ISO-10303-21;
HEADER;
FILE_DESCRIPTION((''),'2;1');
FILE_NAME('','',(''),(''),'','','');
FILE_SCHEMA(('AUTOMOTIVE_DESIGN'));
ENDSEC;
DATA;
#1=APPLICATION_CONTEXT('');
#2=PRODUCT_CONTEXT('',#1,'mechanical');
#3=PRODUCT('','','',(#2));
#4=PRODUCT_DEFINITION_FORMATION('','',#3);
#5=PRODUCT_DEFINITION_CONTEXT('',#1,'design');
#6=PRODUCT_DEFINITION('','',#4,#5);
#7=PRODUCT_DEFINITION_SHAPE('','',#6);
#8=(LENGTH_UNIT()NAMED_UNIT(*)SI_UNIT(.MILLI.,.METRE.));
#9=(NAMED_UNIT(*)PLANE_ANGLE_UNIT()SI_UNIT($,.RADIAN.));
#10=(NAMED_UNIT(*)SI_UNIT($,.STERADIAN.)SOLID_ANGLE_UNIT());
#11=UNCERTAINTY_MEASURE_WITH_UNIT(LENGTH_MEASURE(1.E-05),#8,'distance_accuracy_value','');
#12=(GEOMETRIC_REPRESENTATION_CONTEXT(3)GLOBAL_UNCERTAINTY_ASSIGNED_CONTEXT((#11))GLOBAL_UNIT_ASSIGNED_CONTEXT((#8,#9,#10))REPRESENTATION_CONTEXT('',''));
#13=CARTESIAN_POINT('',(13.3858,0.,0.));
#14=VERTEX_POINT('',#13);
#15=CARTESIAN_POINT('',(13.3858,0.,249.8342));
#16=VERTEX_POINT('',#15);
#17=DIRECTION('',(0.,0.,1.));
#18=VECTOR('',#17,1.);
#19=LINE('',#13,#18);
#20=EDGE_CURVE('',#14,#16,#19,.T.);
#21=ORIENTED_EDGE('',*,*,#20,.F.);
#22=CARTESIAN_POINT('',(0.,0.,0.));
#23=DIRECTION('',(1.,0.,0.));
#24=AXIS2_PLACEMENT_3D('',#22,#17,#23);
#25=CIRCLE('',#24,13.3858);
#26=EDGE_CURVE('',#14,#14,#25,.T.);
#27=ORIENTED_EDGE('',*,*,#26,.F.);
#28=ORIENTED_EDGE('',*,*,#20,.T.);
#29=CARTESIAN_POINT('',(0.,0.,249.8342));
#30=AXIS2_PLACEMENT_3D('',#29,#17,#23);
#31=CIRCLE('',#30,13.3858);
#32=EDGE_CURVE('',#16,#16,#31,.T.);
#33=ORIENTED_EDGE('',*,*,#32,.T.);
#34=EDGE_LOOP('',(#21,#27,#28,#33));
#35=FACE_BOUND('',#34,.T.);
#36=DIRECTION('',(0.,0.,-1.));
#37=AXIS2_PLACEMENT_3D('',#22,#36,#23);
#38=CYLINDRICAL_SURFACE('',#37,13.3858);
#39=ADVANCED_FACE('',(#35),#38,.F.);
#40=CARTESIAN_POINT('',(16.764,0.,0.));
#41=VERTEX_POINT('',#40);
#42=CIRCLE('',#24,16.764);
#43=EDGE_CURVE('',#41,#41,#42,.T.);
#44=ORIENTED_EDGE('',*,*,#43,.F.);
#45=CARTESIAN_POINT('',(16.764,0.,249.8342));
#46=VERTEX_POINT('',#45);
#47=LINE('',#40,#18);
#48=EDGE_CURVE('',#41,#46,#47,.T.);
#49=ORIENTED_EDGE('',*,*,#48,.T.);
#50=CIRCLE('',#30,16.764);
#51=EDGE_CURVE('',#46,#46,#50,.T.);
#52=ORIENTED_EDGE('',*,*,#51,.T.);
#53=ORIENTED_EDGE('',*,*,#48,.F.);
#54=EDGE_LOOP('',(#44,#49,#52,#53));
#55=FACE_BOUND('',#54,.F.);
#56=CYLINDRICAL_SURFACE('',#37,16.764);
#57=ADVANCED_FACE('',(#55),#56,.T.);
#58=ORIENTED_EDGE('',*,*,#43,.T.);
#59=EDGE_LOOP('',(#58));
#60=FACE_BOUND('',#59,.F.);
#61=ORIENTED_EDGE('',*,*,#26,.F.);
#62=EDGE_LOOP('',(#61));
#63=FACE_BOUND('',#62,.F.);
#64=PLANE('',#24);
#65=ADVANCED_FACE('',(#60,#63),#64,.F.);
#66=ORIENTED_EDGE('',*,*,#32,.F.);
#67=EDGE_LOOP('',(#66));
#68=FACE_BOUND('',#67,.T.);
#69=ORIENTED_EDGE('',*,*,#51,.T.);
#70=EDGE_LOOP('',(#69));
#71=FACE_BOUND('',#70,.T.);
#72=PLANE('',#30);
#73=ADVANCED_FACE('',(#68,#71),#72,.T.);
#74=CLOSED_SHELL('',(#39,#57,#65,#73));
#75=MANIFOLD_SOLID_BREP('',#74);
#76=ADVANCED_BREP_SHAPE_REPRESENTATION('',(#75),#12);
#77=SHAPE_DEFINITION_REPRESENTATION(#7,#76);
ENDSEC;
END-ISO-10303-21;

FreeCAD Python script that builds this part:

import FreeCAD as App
import Part
import Sketcher
from FreeCAD import Vector
Q = App.Units.Quantity

doc = App.newDocument("Part")
body = doc.addObject("PartDesign::Body", "Body")

sketch1 = body.newObject("Sketcher::SketchObject", "Sketch")
sketch1.AttachmentSupport = (doc.getObject("XY_Plane"), [""])
sketch1.MapMode = "FlatFace"
sketch1.addGeometry([
    Part.Circle(Vector(0, 0, 0), Vector(0, 0, 1), 17),
    Part.Circle(Vector(0, 0, 0), Vector(0, 0, 1), 13),
], False)
sketch1.addConstraint([
    Sketcher.Constraint("Coincident", 0, 3, -1, 1),
    Sketcher.Constraint("Coincident", 1, 3, -1, 1),
    Sketcher.Constraint("Diameter", 0, Q("1.32 in")),
    Sketcher.Constraint("Diameter", 1, Q("1.054 in")),
])
pad1 = body.newObject("PartDesign::Pad", "Pad")
pad1.Profile = sketch1
pad1.Length = Q("9.8359921 in")

doc.recompute()
